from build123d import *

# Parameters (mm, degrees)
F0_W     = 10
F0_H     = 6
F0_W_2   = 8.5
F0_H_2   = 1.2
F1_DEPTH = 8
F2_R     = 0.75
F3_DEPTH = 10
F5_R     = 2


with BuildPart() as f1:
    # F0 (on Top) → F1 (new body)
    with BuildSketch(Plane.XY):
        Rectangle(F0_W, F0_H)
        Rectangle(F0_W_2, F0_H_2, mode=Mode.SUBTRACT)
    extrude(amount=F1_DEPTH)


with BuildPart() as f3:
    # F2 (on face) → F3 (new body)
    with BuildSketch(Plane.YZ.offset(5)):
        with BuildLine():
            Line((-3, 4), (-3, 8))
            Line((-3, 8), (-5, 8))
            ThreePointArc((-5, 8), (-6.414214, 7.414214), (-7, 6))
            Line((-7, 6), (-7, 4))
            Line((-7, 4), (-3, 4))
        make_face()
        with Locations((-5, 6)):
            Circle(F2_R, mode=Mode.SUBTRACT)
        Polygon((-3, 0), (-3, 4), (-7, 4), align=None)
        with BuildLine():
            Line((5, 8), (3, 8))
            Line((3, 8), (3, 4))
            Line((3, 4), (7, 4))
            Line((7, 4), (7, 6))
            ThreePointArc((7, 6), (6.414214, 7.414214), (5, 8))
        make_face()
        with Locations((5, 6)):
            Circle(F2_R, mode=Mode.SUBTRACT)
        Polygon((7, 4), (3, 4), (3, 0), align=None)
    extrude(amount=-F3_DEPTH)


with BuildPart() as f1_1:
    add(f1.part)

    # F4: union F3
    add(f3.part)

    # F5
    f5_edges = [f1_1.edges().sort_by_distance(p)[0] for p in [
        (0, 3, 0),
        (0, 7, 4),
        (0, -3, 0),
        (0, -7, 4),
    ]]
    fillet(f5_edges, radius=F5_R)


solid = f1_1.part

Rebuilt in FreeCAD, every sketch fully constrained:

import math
import FreeCAD as App
import Part
import Sketcher


def edges_at(feature, points):
    """Names of the edges that pass closest to the given points."""
    edges = feature.Shape.Edges
    near = lambda p: min(range(len(edges)), key=lambda i: edges[i].distToShape(Part.Vertex(*p))[0])
    return sorted({f"Edge{near(p) + 1}" for p in points})

doc = App.newDocument("Part")
body = doc.addObject("PartDesign::Body", "Body")

sketch1 = body.newObject("Sketcher::SketchObject", "Sketch")
sketch1.AttachmentSupport = (doc.getObject("XY_Plane"), [""])
sketch1.MapMode = "FlatFace"
sketch1.addGeometry([
    Part.LineSegment(App.Vector(-5, 3, 0), App.Vector(-5, -3, 0)),
    Part.LineSegment(App.Vector(-5, -3, 0), App.Vector(5, -3, 0)),
    Part.LineSegment(App.Vector(5, -3, 0), App.Vector(5, 3, 0)),
    Part.LineSegment(App.Vector(5, 3, 0), App.Vector(-5, 3, 0)),
    Part.LineSegment(App.Vector(4.2, -0.6, 0), App.Vector(-4.2, -0.6, 0)),
    Part.LineSegment(App.Vector(-4.2, -0.6, 0), App.Vector(-4.2, 0.6, 0)),
    Part.LineSegment(App.Vector(-4.2, 0.6, 0), App.Vector(4.2, 0.6, 0)),
    Part.LineSegment(App.Vector(4.2, 0.6, 0), App.Vector(4.2, -0.6, 0)),
], False)
sketch1.addConstraint([
    Sketcher.Constraint("Coincident", 0, 2, 1, 1),
    Sketcher.Constraint("Coincident", 1, 2, 2, 1),
    Sketcher.Constraint("Coincident", 2, 2, 3, 1),
    Sketcher.Constraint("Coincident", 3, 2, 0, 1),
    Sketcher.Constraint("Coincident", 4, 2, 5, 1),
    Sketcher.Constraint("Coincident", 5, 2, 6, 1),
    Sketcher.Constraint("Coincident", 6, 2, 7, 1),
    Sketcher.Constraint("Coincident", 7, 2, 4, 1),
    Sketcher.Constraint("Vertical", 0),
    Sketcher.Constraint("Horizontal", 1),
    Sketcher.Constraint("Vertical", 2),
    Sketcher.Constraint("Horizontal", 3),
    Sketcher.Constraint("Horizontal", 4),
    Sketcher.Constraint("Vertical", 5),
    Sketcher.Constraint("Horizontal", 6),
    Sketcher.Constraint("Vertical", 7),
    Sketcher.Constraint("Symmetric", 0, 2, 2, 2, -1, 1),
    Sketcher.Constraint("Symmetric", 4, 2, 6, 2, -1, 1),
    Sketcher.Constraint("DistanceX", 1, 1, 1, 2, 10.0),
    Sketcher.Constraint("DistanceY", 0, 2, 0, 1, 6.0),
    Sketcher.Constraint("DistanceX", 4, 2, 4, 1, 8.5),
    Sketcher.Constraint("DistanceY", 5, 1, 5, 2, 1.2),
])
pad1 = body.newObject("PartDesign::Pad", "Pad")
pad1.Profile = sketch1
pad1.Length = 8
body2 = doc.addObject("PartDesign::Body", "Body001")
body2.AllowCompound = True

sketch2 = body2.newObject("Sketcher::SketchObject", "Sketch001")
sketch2.AttachmentSupport = (doc.getObject("YZ_Plane001"), [""])
sketch2.MapMode = "FlatFace"
sketch2.AttachmentOffset = App.Placement(App.Vector(0, 0, 5), App.Rotation())
sketch2.addGeometry([
    Part.LineSegment(App.Vector(-3, 8, 0), App.Vector(-5, 8, 0)),
    Part.ArcOfCircle(Part.Circle(App.Vector(-5, 6, 0), App.Vector(0, 0, 1), 2), math.radians(90), math.radians(180)),
    Part.LineSegment(App.Vector(-7, 6, 0), App.Vector(-7, 4, 0)),
    Part.LineSegment(App.Vector(-7, 4, 0), App.Vector(-3, 0, 0)),
    Part.LineSegment(App.Vector(-3, 0, 0), App.Vector(-3, 8, 0)),
    Part.Circle(App.Vector(-5, 6, 0), App.Vector(0, 0, 1), 0.8),
    Part.LineSegment(App.Vector(5, 8, 0), App.Vector(3, 8, 0)),
    Part.LineSegment(App.Vector(3, 8, 0), App.Vector(3, 0, 0)),
    Part.LineSegment(App.Vector(3, 0, 0), App.Vector(7, 4, 0)),
    Part.LineSegment(App.Vector(7, 4, 0), App.Vector(7, 6, 0)),
    Part.ArcOfCircle(Part.Circle(App.Vector(5, 6, 0), App.Vector(0, 0, 1), 2), math.radians(0), math.radians(90)),
    Part.Circle(App.Vector(5, 6, 0), App.Vector(0, 0, 1), 0.8),
], False)
sketch2.addConstraint([
    Sketcher.Constraint("Tangent", 0, 2, 1, 1),
    Sketcher.Constraint("Tangent", 1, 2, 2, 1),
    Sketcher.Constraint("Coincident", 2, 2, 3, 1),
    Sketcher.Constraint("Coincident", 3, 2, 4, 1),
    Sketcher.Constraint("Coincident", 4, 2, 0, 1),
    Sketcher.Constraint("Coincident", 6, 2, 7, 1),
    Sketcher.Constraint("Coincident", 7, 2, 8, 1),
    Sketcher.Constraint("Coincident", 8, 2, 9, 1),
    Sketcher.Constraint("Tangent", 9, 2, 10, 1),
    Sketcher.Constraint("Tangent", 10, 2, 6, 1),
    Sketcher.Constraint("Horizontal", 0),
    Sketcher.Constraint("Vertical", 2),
    Sketcher.Constraint("Vertical", 4),
    Sketcher.Constraint("Horizontal", 6),
    Sketcher.Constraint("Vertical", 7),
    Sketcher.Constraint("Vertical", 9),
    Sketcher.Constraint("Coincident", 5, 3, 1, 3),
    Sketcher.Constraint("Coincident", 11, 3, 10, 3),
    Sketcher.Constraint("Equal", 1, 10),
    Sketcher.Constraint("Equal", 5, 11),
    Sketcher.Constraint("Symmetric", 3, 2, 7, 2, -1, 1),
    Sketcher.Constraint("Symmetric", 1, 3, 10, 3, -2),
    Sketcher.Constraint("PointOnObject", 3, 2, -1),
    Sketcher.Constraint("Perpendicular", 3, 8),
    Sketcher.Constraint("Horizontal", 2, 2, 8, 2),
    Sketcher.Constraint("Equal", 6, 2),
    Sketcher.Constraint("Radius", 1, 1.999999),
    Sketcher.Constraint("Diameter", 5, 1.5),
    Sketcher.Constraint("DistanceX", 0, 2, 0, 1, 2.0),
    Sketcher.Constraint("DistanceX", 1, 3, -1, 1, 5.000001),
])
pad2 = body2.newObject("PartDesign::Pad", "Pad001")
pad2.Profile = sketch2
pad2.Length = 10
pad2.Reversed = True
doc.recompute()

boolean = body.newObject("PartDesign::Boolean", "Boolean")
boolean.Type = "Fuse"
boolean.addObjects([body2])
doc.recompute()

fillet = body.newObject("PartDesign::Fillet", "Fillet")
fillet.Base = (boolean, edges_at(boolean, [
    (0, 3, 0),
    (0, 7, 4),
    (0, -3, 0),
    (0, -7, 4),
]))
fillet.Radius = 2

doc.recompute()
